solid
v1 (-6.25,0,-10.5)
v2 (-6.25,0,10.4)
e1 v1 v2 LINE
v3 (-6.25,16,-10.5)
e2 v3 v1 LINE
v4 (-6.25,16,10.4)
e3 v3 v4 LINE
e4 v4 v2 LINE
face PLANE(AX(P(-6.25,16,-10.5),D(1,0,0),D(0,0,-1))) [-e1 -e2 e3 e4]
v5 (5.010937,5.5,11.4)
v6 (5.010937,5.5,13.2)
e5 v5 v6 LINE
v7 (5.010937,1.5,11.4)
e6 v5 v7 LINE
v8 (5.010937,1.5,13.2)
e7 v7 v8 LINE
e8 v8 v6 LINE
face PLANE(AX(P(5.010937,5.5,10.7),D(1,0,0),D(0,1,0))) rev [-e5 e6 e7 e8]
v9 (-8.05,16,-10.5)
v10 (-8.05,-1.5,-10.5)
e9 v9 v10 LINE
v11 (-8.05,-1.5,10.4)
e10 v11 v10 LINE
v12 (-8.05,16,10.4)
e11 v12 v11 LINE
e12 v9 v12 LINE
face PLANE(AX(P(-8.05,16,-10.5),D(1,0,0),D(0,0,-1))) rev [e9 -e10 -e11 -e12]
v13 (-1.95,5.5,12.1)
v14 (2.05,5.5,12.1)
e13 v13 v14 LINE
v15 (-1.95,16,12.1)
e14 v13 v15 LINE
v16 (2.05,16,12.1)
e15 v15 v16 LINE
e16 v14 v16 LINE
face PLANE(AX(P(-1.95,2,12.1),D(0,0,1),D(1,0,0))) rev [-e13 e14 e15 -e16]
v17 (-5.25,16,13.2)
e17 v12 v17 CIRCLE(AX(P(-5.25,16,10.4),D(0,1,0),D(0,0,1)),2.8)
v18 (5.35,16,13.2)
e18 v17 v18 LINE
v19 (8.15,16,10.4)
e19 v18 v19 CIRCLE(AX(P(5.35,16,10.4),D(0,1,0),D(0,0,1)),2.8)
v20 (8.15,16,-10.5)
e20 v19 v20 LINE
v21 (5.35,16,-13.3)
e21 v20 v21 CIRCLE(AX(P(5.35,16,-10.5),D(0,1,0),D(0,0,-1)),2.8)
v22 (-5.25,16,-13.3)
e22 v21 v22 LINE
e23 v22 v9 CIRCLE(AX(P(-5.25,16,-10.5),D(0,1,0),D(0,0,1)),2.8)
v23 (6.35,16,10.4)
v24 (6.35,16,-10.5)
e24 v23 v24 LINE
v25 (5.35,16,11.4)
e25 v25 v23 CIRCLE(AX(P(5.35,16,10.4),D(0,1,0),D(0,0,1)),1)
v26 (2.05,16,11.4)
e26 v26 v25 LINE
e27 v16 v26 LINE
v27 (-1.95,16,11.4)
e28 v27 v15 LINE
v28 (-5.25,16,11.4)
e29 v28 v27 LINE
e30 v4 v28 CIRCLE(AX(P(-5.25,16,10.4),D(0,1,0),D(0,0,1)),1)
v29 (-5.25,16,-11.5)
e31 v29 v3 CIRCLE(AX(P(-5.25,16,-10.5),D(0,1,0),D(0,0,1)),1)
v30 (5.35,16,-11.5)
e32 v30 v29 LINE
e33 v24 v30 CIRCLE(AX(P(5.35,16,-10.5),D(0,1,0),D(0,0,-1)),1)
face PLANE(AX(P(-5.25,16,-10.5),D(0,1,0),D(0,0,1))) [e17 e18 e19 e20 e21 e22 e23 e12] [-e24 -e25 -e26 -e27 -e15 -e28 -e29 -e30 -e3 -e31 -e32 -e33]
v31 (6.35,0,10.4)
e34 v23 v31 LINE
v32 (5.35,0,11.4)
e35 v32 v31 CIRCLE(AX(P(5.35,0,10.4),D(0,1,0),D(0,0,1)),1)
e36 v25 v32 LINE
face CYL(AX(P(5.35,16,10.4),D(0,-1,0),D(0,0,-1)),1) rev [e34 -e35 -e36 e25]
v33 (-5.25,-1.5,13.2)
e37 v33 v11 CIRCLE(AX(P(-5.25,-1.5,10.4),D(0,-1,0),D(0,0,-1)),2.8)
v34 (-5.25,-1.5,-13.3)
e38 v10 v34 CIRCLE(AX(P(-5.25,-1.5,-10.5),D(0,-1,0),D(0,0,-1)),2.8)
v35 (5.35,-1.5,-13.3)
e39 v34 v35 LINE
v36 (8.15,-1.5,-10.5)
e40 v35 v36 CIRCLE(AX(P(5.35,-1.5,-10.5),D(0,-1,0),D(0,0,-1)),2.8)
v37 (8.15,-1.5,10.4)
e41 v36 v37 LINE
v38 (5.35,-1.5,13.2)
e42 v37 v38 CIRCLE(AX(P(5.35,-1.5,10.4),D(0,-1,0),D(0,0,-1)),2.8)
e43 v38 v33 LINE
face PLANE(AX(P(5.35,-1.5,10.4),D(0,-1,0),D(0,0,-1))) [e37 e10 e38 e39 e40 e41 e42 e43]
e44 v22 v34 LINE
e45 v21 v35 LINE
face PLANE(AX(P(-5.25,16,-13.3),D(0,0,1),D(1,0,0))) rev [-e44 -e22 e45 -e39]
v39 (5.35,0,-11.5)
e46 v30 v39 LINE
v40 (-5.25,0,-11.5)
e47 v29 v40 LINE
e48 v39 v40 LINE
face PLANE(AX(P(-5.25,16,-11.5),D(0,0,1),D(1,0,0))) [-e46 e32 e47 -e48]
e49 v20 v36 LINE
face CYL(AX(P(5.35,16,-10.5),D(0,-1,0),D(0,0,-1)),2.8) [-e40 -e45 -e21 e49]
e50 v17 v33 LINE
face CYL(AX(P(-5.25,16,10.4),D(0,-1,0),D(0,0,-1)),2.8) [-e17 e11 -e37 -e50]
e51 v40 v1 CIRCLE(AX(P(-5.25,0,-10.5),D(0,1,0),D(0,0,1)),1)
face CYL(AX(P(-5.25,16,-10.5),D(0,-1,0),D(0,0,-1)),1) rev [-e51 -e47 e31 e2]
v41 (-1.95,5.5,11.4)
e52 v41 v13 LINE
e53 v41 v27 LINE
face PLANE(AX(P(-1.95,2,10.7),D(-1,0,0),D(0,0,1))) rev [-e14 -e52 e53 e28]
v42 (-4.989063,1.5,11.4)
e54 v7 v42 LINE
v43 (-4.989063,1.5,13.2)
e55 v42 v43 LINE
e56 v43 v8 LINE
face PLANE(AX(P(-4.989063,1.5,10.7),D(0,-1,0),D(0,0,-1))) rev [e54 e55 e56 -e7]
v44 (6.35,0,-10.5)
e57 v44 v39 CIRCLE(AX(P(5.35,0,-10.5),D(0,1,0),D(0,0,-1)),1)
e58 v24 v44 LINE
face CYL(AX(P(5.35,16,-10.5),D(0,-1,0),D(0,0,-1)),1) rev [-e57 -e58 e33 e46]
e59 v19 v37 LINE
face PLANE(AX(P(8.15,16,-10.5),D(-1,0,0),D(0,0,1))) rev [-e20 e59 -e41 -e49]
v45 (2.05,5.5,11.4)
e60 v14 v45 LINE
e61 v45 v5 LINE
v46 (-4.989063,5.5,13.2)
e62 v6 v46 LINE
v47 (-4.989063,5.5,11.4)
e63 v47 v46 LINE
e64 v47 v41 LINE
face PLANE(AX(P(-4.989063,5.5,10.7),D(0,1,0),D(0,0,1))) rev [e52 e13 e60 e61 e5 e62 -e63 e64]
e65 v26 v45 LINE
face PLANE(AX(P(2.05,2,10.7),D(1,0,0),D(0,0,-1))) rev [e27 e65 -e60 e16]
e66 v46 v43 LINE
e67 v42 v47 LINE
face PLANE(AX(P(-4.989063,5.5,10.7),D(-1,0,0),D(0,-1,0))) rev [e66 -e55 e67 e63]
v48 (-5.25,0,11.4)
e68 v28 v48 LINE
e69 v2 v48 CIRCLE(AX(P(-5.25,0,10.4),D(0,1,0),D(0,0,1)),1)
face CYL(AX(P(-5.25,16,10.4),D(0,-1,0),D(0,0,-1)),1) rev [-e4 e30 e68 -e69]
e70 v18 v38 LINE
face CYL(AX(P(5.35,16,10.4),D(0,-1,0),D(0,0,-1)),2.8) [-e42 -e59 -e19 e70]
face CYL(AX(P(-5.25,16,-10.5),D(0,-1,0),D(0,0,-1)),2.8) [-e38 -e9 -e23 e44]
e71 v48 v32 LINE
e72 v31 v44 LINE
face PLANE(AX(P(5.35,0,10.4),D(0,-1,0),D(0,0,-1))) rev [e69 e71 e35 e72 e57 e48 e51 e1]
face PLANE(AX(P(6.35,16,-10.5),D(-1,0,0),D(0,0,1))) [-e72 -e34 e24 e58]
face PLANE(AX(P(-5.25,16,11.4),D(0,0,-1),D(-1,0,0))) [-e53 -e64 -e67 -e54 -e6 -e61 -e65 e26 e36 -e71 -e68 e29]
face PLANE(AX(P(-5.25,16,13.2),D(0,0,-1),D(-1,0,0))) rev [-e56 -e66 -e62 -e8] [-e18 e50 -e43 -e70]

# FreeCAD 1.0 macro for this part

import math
import FreeCAD as App
import Part
import Sketcher
from FreeCAD import Vector
Q = App.Units.Quantity

doc = App.newDocument("Part")
body = doc.addObject("PartDesign::Body", "Body")

sketch1 = doc.addObject("Sketcher::SketchObject", "Sketch")
body.addObject(sketch1)
sketch1.AttachmentSupport = (doc.XZ_Plane, [""])
sketch1.MapMode = "FlatFace"
sketch1.addGeometry([
    Part.LineSegment(Vector(5.3, -13.3, 0), Vector(-5.2, -13.3, 0)),
    Part.ArcOfCircle(Part.Circle(Vector(-5.2, -10.5, 0), Vector(0, 0, 1), 2.8), math.radians(-180), math.radians(-90)),
    Part.LineSegment(Vector(-8.1, -10.5, 0), Vector(-8.1, 10.4, 0)),
    Part.ArcOfCircle(Part.Circle(Vector(-5.2, 10.4, 0), Vector(0, 0, 1), 2.8), math.radians(90), math.radians(180)),
    Part.LineSegment(Vector(-5.2, 13.2, 0), Vector(5.3, 13.2, 0)),
    Part.ArcOfCircle(Part.Circle(Vector(5.3, 10.4, 0), Vector(0, 0, 1), 2.8), math.radians(0), math.radians(90)),
    Part.LineSegment(Vector(8.2, 10.4, 0), Vector(8.2, -10.5, 0)),
    Part.ArcOfCircle(Part.Circle(Vector(5.3, -10.5, 0), Vector(0, 0, 1), 2.8), math.radians(-90), math.radians(0)),
    Part.LineSegment(Vector(-5.2, -11.5, 0), Vector(5.3, -11.5, 0)),
    Part.ArcOfCircle(Part.Circle(Vector(5.3, -10.5, 0), Vector(0, 0, 1), 1), math.radians(-90), math.radians(0)),
    Part.LineSegment(Vector(6.3, -10.5, 0), Vector(6.3, 10.4, 0)),
    Part.ArcOfCircle(Part.Circle(Vector(5.3, 10.4, 0), Vector(0, 0, 1), 1), math.radians(0), math.radians(90)),
    Part.LineSegment(Vector(5.3, 11.4, 0), Vector(-5.2, 11.4, 0)),
    Part.ArcOfCircle(Part.Circle(Vector(-5.2, 10.4, 0), Vector(0, 0, 1), 1), math.radians(90), math.radians(180)),
    Part.LineSegment(Vector(-6.2, 10.4, 0), Vector(-6.2, -10.5, 0)),
    Part.ArcOfCircle(Part.Circle(Vector(-5.2, -10.5, 0), Vector(0, 0, 1), 1), math.radians(-180), math.radians(-90)),
], False)
sketch1.addConstraint([
    Sketcher.Constraint("Tangent", 0, 2, 1, 2),
    Sketcher.Constraint("Tangent", 1, 1, 2, 1),
    Sketcher.Constraint("Tangent", 2, 2, 3, 2),
    Sketcher.Constraint("Tangent", 3, 1, 4, 1),
    Sketcher.Constraint("Tangent", 4, 2, 5, 2),
    Sketcher.Constraint("Tangent", 5, 1, 6, 1),
    Sketcher.Constraint("Tangent", 6, 2, 7, 2),
    Sketcher.Constraint("Tangent", 7, 1, 0, 1),
    Sketcher.Constraint("Tangent", 8, 2, 9, 1),
    Sketcher.Constraint("Tangent", 9, 2, 10, 1),
    Sketcher.Constraint("Tangent", 10, 2, 11, 1),
    Sketcher.Constraint("Tangent", 11, 2, 12, 1),
    Sketcher.Constraint("Tangent", 12, 2, 13, 1),
    Sketcher.Constraint("Tangent", 13, 2, 14, 1),
    Sketcher.Constraint("Tangent", 14, 2, 15, 1),
    Sketcher.Constraint("Tangent", 15, 2, 8, 1),
    Sketcher.Constraint("Horizontal", 0),
    Sketcher.Constraint("Vertical", 2),
    Sketcher.Constraint("Horizontal", 4),
    Sketcher.Constraint("Vertical", 6),
    Sketcher.Constraint("Horizontal", 8),
    Sketcher.Constraint("Vertical", 10),
    Sketcher.Constraint("Horizontal", 12),
    Sketcher.Constraint("Vertical", 14),
    Sketcher.Constraint("Coincident", 9, 3, 7, 3),
    Sketcher.Constraint("Coincident", 11, 3, 5, 3),
    Sketcher.Constraint("Coincident", 13, 3, 3, 3),
    Sketcher.Constraint("Equal", 1, 3),
    Sketcher.Constraint("Equal", 3, 5),
    Sketcher.Constraint("Equal", 5, 7),
    Sketcher.Constraint("Equal", 13, 15),
    Sketcher.Constraint("Radius", 9, Q("1 mm")),
    Sketcher.Constraint("Radius", 1, Q("2.8 mm")),
    Sketcher.Constraint("DistanceX", 0, 2, 0, 1, Q("10.6 mm")),
    Sketcher.Constraint("DistanceY", 2, 1, 2, 2, Q("20.9 mm")),
    Sketcher.Constraint("DistanceY", 1, 3, -1, 1, Q("10.5 mm")),
    Sketcher.Constraint("DistanceX", 1, 3, -1, 1, Q("5.25 mm")),
])
pad1 = doc.addObject("PartDesign::Pad", "Pad")
body.addObject(pad1)
pad1.Profile = sketch1
pad1.Length = 16
pad1.Reversed = True

sketch2 = doc.addObject("Sketcher::SketchObject", "Sketch001")
body.addObject(sketch2)
sketch2.AttachmentSupport = (doc.XZ_Plane, [""])
sketch2.MapMode = "FlatFace"
sketch2.AttachmentOffset = App.Placement(Vector(0, 0, 1.5), App.Rotation())
sketch2.addGeometry([
    Part.LineSegment(Vector(5.3, 13.2, 0), Vector(-5.2, 13.2, 0)),
    Part.ArcOfCircle(Part.Circle(Vector(-5.2, 10.4, 0), Vector(0, 0, 1), 2.8), math.radians(90), math.radians(180)),
    Part.LineSegment(Vector(-8.1, 10.4, 0), Vector(-8.1, -10.5, 0)),
    Part.ArcOfCircle(Part.Circle(Vector(-5.2, -10.5, 0), Vector(0, 0, 1), 2.8), math.radians(-180), math.radians(-90)),
    Part.LineSegment(Vector(-5.2, -13.3, 0), Vector(5.3, -13.3, 0)),
    Part.ArcOfCircle(Part.Circle(Vector(5.3, -10.5, 0), Vector(0, 0, 1), 2.8), math.radians(-90), math.radians(0)),
    Part.LineSegment(Vector(8.2, -10.5, 0), Vector(8.2, 10.4, 0)),
    Part.ArcOfCircle(Part.Circle(Vector(5.3, 10.4, 0), Vector(0, 0, 1), 2.8), math.radians(0), math.radians(90)),
], False)
sketch2.addConstraint([
    Sketcher.Constraint("Tangent", 0, 2, 1, 1),
    Sketcher.Constraint("Tangent", 1, 2, 2, 1),
    Sketcher.Constraint("Tangent", 2, 2, 3, 1),
    Sketcher.Constraint("Tangent", 3, 2, 4, 1),
    Sketcher.Constraint("Tangent", 4, 2, 5, 1),
    Sketcher.Constraint("Tangent", 5, 2, 6, 1),
    Sketcher.Constraint("Tangent", 6, 2, 7, 1),
    Sketcher.Constraint("Tangent", 7, 2, 0, 1),
    Sketcher.Constraint("Horizontal", 0),
    Sketcher.Constraint("Vertical", 2),
    Sketcher.Constraint("Horizontal", 4),
    Sketcher.Constraint("Vertical", 6),
    Sketcher.Constraint("Equal", 1, 3),
    Sketcher.Constraint("Equal", 3, 5),
    Sketcher.Constraint("Equal", 5, 7),
    Sketcher.Constraint("Radius", 1, Q("2.8 mm")),
    Sketcher.Constraint("DistanceX", 0, 2, 0, 1, Q("10.6 mm")),
    Sketcher.Constraint("DistanceY", 2, 2, 2, 1, Q("20.9 mm")),
    Sketcher.Constraint("DistanceY", -1, 1, 1, 3, Q("10.4 mm")),
    Sketcher.Constraint("DistanceX", 1, 3, -1, 1, Q("5.25 mm")),
])
pad2 = doc.addObject("PartDesign::Pad", "Pad001")
body.addObject(pad2)
pad2.Profile = sketch2
pad2.Length = 1.5
pad2.Reversed = True

sketch3 = doc.addObject("Sketcher::SketchObject", "Sketch002")
body.addObject(sketch3)
sketch3.AttachmentSupport = (doc.XY_Plane, [""])
sketch3.MapMode = "FlatFace"
sketch3.AttachmentOffset = App.Placement(Vector(0, 0, 13.2), App.Rotation())
sketch3.addGeometry([
    Part.LineSegment(Vector(-5, 5.5, 0), Vector(-5, 1.5, 0)),
    Part.LineSegment(Vector(-5, 1.5, 0), Vector(5, 1.5, 0)),
    Part.LineSegment(Vector(5, 1.5, 0), Vector(5, 5.5, 0)),
    Part.LineSegment(Vector(5, 5.5, 0), Vector(-5, 5.5, 0)),
], False)
sketch3.addConstraint([
    Sketcher.Constraint("Coincident", 0, 2, 1, 1),
    Sketcher.Constraint("Coincident", 1, 2, 2, 1),
    Sketcher.Constraint("Coincident", 2, 2, 3, 1),
    Sketcher.Constraint("Coincident", 3, 2, 0, 1),
    Sketcher.Constraint("Vertical", 0),
    Sketcher.Constraint("Horizontal", 1),
    Sketcher.Constraint("Vertical", 2),
    Sketcher.Constraint("Horizontal", 3),
    Sketcher.Constraint("DistanceX", 1, 1, 1, 2, Q("10 mm")),
    Sketcher.Constraint("DistanceY", 0, 2, 0, 1, Q("4 mm")),
    Sketcher.Constraint("DistanceY", -1, 1, 0, 2, Q("1.5 mm")),
    Sketcher.Constraint("DistanceX", 0, 2, -1, 1, Q("4.989063 mm")),
])
pocket1 = doc.addObject("PartDesign::Pocket", "Pocket")
body.addObject(pocket1)
pocket1.Profile = sketch3
pocket1.Length = 2.5

sketch4 = doc.addObject("Sketcher::SketchObject", "Sketch003")
body.addObject(sketch4)
sketch4.AttachmentSupport = (doc.XZ_Plane, [""])
sketch4.MapMode = "FlatFace"
sketch4.AttachmentOffset = App.Placement(Vector(0, 0, -16), App.Rotation())
sketch4.addGeometry([
    Part.LineSegment(Vector(-1.9, 10.7, 0), Vector(-1.9, 12.1, 0)),
    Part.LineSegment(Vector(-1.9, 12.1, 0), Vector(2, 12.1, 0)),
    Part.LineSegment(Vector(2, 12.1, 0), Vector(2, 10.7, 0)),
    Part.LineSegment(Vector(2, 10.7, 0), Vector(-1.9, 10.7, 0)),
], False)
sketch4.addConstraint([
    Sketcher.Constraint("Coincident", 0, 2, 1, 1),
    Sketcher.Constraint("Coincident", 1, 2, 2, 1),
    Sketcher.Constraint("Coincident", 2, 2, 3, 1),
    Sketcher.Constraint("Coincident", 3, 2, 0, 1),
    Sketcher.Constraint("Vertical", 0),
    Sketcher.Constraint("Horizontal", 1),
    Sketcher.Constraint("Vertical", 2),
    Sketcher.Constraint("Horizontal", 3),
    Sketcher.Constraint("DistanceX", 1, 1, 1, 2, Q("4 mm")),
    Sketcher.Constraint("DistanceY", 0, 1, 0, 2, Q("1.4 mm")),
    Sketcher.Constraint("DistanceY", -1, 1, 0, 2, Q("12.1 mm")),
    Sketcher.Constraint("DistanceX", 0, 2, -1, 1, Q("1.95 mm")),
])
pocket2 = doc.addObject("PartDesign::Pocket", "Pocket001")
body.addObject(pocket2)
pocket2.Profile = sketch4
pocket2.Length = 14
pocket2.Reversed = True

doc.recompute()
